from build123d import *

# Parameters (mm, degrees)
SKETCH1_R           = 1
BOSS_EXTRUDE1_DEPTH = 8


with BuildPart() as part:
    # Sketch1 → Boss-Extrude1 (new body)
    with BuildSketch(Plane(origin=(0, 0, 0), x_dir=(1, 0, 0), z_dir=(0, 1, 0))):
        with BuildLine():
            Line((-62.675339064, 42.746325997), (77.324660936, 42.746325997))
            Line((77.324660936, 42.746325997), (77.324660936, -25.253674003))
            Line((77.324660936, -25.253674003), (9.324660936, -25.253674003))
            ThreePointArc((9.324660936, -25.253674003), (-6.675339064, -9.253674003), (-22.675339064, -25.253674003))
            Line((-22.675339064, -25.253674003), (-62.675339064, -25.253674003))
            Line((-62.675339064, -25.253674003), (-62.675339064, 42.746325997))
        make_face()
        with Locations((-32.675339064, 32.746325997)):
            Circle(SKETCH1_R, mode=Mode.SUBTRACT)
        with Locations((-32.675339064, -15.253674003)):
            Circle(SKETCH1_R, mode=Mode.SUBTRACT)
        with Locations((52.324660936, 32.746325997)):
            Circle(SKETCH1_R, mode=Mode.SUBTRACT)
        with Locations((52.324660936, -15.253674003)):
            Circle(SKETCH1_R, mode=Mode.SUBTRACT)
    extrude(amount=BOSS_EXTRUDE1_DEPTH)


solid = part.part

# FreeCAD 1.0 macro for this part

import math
import FreeCAD as App
import Part
import Sketcher

V = App.Vector

doc = App.newDocument("Part")
params = doc.addObject("Spreadsheet::Sheet", "Params")
for row, (alias, value) in enumerate([
    ("sketch1_diameter", "2 mm"),
    ("sketch1_radius", "16 mm"),
    ("sketch1_width", "140 mm"),
    ("sketch1_width2", "40 mm"),
    ("pad1_length", "8 mm"),
], start=1):
    params.set(f"A{row}", alias)
    params.set(f"B{row}", "=" + value)
    params.setAlias(f"B{row}", alias)

body = doc.addObject("PartDesign::Body", "Body")

sketch1 = body.newObject("Sketcher::SketchObject", "Sketch")
sketch1.AttachmentSupport = (doc.getObject("XZ_Plane"), [""])
sketch1.MapMode = "FlatFace"
sketch1.addGeometry([
    Part.LineSegment(V(77.3, -42.7, 0), V(-62.7, -42.7, 0)),
    Part.LineSegment(V(-62.7, -42.7, 0), V(-62.7, 25.3, 0)),
    Part.LineSegment(V(-62.7, 25.3, 0), V(-22.7, 25.3, 0)),
    Part.ArcOfCircle(Part.Circle(V(-6.7, 25.3, 0), V(0, 0, 1), 16), math.radians(180), math.radians(360)),
    Part.LineSegment(V(9.3, 25.3, 0), V(77.3, 25.3, 0)),
    Part.LineSegment(V(77.3, 25.3, 0), V(77.3, -42.7, 0)),
    Part.Circle(V(52.3, 15.3, 0), V(0, 0, 1), 1),
    Part.Circle(V(-32.7, 15.3, 0), V(0, 0, 1), 1),
    Part.Circle(V(52.3, -32.7, 0), V(0, 0, 1), 1),
    Part.Circle(V(-32.7, -32.7, 0), V(0, 0, 1), 1),
], False)
sketch1.addConstraint([
    Sketcher.Constraint("Coincident", 0, 2, 1, 1),
    Sketcher.Constraint("Coincident", 1, 2, 2, 1),
    Sketcher.Constraint("Coincident", 2, 2, 3, 1),
    Sketcher.Constraint("Coincident", 3, 2, 4, 1),
    Sketcher.Constraint("Coincident", 4, 2, 5, 1),
    Sketcher.Constraint("Coincident", 5, 2, 0, 1),
    Sketcher.Constraint("Horizontal", 0),
    Sketcher.Constraint("Vertical", 1),
    Sketcher.Constraint("Horizontal", 2),
    Sketcher.Constraint("Horizontal", 4),
    Sketcher.Constraint("Vertical", 5),
    Sketcher.Constraint("Equal", 6, 7),
    Sketcher.Constraint("Equal", 7, 8),
    Sketcher.Constraint("Equal", 8, 9),
    Sketcher.Constraint("Horizontal", 6, 3, 7, 3),
    Sketcher.Constraint("Horizontal", 8, 3, 9, 3),
    Sketcher.Constraint("Horizontal", 3, 3, 1, 2),
    Sketcher.Constraint("Horizontal", 2, 2, 3, 2),
    Sketcher.Constraint("Vertical", 6, 3, 8, 3),
    Sketcher.Constraint("Vertical", 7, 3, 9, 3),
    Sketcher.Constraint("Equal", 4, 1),
    Sketcher.Constraint("Diameter", 6, 2.0),
    Sketcher.Constraint("Radius", 3, 16.0),
    Sketcher.Constraint("DistanceX", 0, 2, 0, 1, 140.0),
    Sketcher.Constraint("DistanceX", 2, 1, 2, 2, 40.0),
    Sketcher.Constraint("DistanceX", 3, 3, 6, 3, 59.0),
    Sketcher.Constraint("DistanceY", 6, 3, 3, 3, 10.0),
    Sketcher.Constraint("DistanceX", 7, 3, 3, 3, 26.0),
    Sketcher.Constraint("DistanceY", 8, 3, 6, 3, 48.0),
    Sketcher.Constraint("DistanceX", 3, 3, -1, 1, 6.675339),
    Sketcher.Constraint("DistanceY", -1, 1, 3, 3, 25.253674),
])
sketch1.setExpression("Constraints[21]", "Params.sketch1_diameter")
sketch1.setExpression("Constraints[22]", "Params.sketch1_radius")
sketch1.setExpression("Constraints[23]", "Params.sketch1_width")
sketch1.setExpression("Constraints[24]", "Params.sketch1_width2")
pad1 = body.newObject("PartDesign::Pad", "Pad")
pad1.Profile = sketch1
pad1.setExpression("Length", "Params.pad1_length")
pad1.Reversed = True

doc.recompute()
